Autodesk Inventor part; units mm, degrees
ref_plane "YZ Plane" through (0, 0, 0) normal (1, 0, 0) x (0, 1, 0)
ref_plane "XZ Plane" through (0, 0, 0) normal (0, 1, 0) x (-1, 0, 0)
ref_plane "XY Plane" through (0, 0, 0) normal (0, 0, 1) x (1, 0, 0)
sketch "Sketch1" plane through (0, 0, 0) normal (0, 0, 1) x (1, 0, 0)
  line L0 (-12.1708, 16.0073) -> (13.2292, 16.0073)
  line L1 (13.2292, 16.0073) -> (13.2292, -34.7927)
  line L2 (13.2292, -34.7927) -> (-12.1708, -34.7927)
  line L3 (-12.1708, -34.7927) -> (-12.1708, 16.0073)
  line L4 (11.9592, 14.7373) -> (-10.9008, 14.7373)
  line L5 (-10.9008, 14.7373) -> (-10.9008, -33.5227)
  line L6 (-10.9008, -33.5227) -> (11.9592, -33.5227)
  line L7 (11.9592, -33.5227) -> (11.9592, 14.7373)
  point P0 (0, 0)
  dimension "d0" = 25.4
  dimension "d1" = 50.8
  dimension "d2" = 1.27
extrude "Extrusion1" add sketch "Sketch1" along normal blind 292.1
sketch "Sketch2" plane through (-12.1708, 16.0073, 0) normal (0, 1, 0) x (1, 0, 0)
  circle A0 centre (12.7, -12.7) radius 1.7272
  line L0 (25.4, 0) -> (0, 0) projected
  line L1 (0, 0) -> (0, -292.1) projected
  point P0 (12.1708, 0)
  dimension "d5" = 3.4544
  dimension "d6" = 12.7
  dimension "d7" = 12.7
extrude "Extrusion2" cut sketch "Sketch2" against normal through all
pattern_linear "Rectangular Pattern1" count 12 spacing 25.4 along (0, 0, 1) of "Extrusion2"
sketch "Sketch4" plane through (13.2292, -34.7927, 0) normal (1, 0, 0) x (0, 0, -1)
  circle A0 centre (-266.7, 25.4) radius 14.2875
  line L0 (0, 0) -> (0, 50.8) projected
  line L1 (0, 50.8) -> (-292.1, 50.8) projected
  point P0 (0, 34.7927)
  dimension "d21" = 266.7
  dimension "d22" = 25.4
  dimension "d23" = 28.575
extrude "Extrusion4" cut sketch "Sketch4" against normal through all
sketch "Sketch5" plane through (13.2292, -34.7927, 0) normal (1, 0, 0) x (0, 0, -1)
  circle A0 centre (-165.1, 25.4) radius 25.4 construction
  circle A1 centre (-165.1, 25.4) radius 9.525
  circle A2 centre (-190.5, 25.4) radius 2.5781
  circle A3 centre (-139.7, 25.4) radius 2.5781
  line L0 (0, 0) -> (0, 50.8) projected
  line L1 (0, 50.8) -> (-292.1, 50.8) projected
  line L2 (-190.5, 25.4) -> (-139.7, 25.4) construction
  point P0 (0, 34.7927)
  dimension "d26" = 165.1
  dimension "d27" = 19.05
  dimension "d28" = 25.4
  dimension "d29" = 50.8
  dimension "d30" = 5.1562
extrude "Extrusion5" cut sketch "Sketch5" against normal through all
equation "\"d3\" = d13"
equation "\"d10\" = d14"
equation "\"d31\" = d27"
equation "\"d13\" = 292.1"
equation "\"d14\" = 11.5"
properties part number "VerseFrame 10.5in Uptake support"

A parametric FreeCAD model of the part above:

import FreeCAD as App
import Part
import Sketcher
Q = App.Units.Quantity


def add_polygon(sketch, points):
    """Adds a closed chain of lines whose ends are joined by coincident constraints."""
    first, n = sketch.GeometryCount, len(points)
    for a, b in zip(points, points[1:] + points[:1]):
        sketch.addGeometry(Part.LineSegment(App.Vector(*a, 0), App.Vector(*b, 0)), False)
    for i in range(n):
        sketch.addConstraint(Sketcher.Constraint("Coincident", first + i, 2, first + (i + 1) % n, 1))

doc = App.newDocument("Part")
body = doc.addObject("PartDesign::Body", "Body")

sketch1 = body.newObject("Sketcher::SketchObject", "Sketch")
sketch1.AttachmentSupport = (doc.getObject("XY_Plane"), [""])
sketch1.MapMode = "FlatFace"
add_polygon(sketch1, [(13.2292, 16.0073), (-12.1708, 16.0073), (-12.1708, -34.7927), (13.2292, -34.7927)])
add_polygon(sketch1, [(-10.9008, 14.7373), (11.9592, 14.7373), (11.9592, -33.5227), (-10.9008, -33.5227)])
sketch1.addConstraint([
    Sketcher.Constraint("Horizontal", 0),
    Sketcher.Constraint("Vertical", 1),
    Sketcher.Constraint("Horizontal", 2),
    Sketcher.Constraint("Vertical", 3),
    Sketcher.Constraint("Horizontal", 4),
    Sketcher.Constraint("Vertical", 5),
    Sketcher.Constraint("Horizontal", 6),
    Sketcher.Constraint("Vertical", 7),
    Sketcher.Constraint("DistanceX", 0, 2, 0, 1, Q("1 in")),
    Sketcher.Constraint("DistanceY", 1, 2, 1, 1, Q("2 in")),
    Sketcher.Constraint("DistanceX", 4, 2, 3, 2, Q("0.05 in")),
    Sketcher.Constraint("DistanceY", 4, 2, 3, 2, Q("0.05 in")),
    Sketcher.Constraint("DistanceY", 2, 2, 5, 2, Q("0.05 in")),
    Sketcher.Constraint("DistanceX", 1, 2, 6, 2, Q("0.05 in")),
    Sketcher.Constraint("DistanceY", -1, 1, 0, 2, Q("0.6302 in")),
    Sketcher.Constraint("DistanceX", 0, 2, -1, 1, 12.1708),
])
pad1 = body.newObject("PartDesign::Pad", "Pad")
pad1.Profile = sketch1
pad1.Length = Q("11.5 in")

sketch2 = body.newObject("Sketcher::SketchObject", "Sketch001")
sketch2.AttachmentSupport = (doc.getObject("XZ_Plane"), [""])
sketch2.MapMode = "FlatFace"
sketch2.AttachmentOffset = App.Placement(App.Vector(0, 0, -0.6302087 * 25.4), App.Rotation())
sketch2.addGeometry(Part.Circle(App.Vector(0.5292, 12.7, 0), App.Vector(0, 0, 1), 1.7272), False)
sketch2.addConstraint([
    Sketcher.Constraint("Diameter", 0, Q("0.136 in")),
    Sketcher.Constraint("DistanceY", -1, 1, 0, 3, Q("0.5 in")),
    Sketcher.Constraint("DistanceX", -1, 1, 0, 3, 0.5292),
])
pocket1 = body.newObject("PartDesign::Pocket", "Pocket")
pocket1.Profile = sketch2
pocket1.Type = "ThroughAll"
pocket1.Reversed = True
doc.recompute()

linearpattern = body.newObject("PartDesign::LinearPattern", "LinearPattern")
linearpattern.Originals = [pocket1]
linearpattern.Direction = (doc.getObject("Z_Axis"), [""])
linearpattern.Mode = "offset"
linearpattern.Offset = Q("1 in")
linearpattern.Occurrences = 12
body.Tip = linearpattern

sketch3 = body.newObject("Sketcher::SketchObject", "Sketch002")
sketch3.AttachmentSupport = (doc.getObject("YZ_Plane"), [""])
sketch3.MapMode = "FlatFace"
sketch3.AttachmentOffset = App.Placement(App.Vector(0, 0, 13.2292), App.Rotation())
sketch3.addGeometry(Part.Circle(App.Vector(-9.3927, 266.7, 0), App.Vector(0, 0, 1), 14.2875), False)
sketch3.addConstraint([
    Sketcher.Constraint("Diameter", 0, Q("1.125 in")),
    Sketcher.Constraint("DistanceY", -1, 1, 0, 3, Q("10.5 in")),
    Sketcher.Constraint("DistanceX", 0, 3, -1, 1, Q("0.3698 in")),
])
pocket2 = body.newObject("PartDesign::Pocket", "Pocket001")
pocket2.Profile = sketch3
pocket2.Type = "ThroughAll"

sketch4 = body.newObject("Sketcher::SketchObject", "Sketch003")
sketch4.AttachmentSupport = (doc.getObject("YZ_Plane"), [""])
sketch4.MapMode = "FlatFace"
sketch4.AttachmentOffset = App.Placement(App.Vector(0, 0, 13.2292), App.Rotation())
sketch4.addGeometry([
    Part.Circle(App.Vector(-9.3927, 165.1, 0), App.Vector(0, 0, 1), 9.525),
    Part.Circle(App.Vector(-9.3927, 190.5, 0), App.Vector(0, 0, 1), 2.5781),
    Part.Circle(App.Vector(-9.3927, 139.7, 0), App.Vector(0, 0, 1), 2.5781),
], False)
sketch4.addConstraint([
    Sketcher.Constraint("Equal", 1, 2),
    Sketcher.Constraint("Vertical", 0, 3, 1, 3),
    Sketcher.Constraint("Vertical", 1, 3, 2, 3),
    Sketcher.Constraint("Diameter", 0, Q("0.75 in")),
    Sketcher.Constraint("Diameter", 1, Q("0.203 in")),
    Sketcher.Constraint("DistanceY", 0, 3, 1, 3, Q("1 in")),
    Sketcher.Constraint("DistanceY", 2, 3, 0, 3, Q("1 in")),
    Sketcher.Constraint("DistanceY", -1, 1, 0, 3, Q("6.5 in")),
    Sketcher.Constraint("DistanceX", 0, 3, -1, 1, Q("0.3698 in")),
])
pocket3 = body.newObject("PartDesign::Pocket", "Pocket002")
pocket3.Profile = sketch4
pocket3.Type = "ThroughAll"

doc.recompute()
